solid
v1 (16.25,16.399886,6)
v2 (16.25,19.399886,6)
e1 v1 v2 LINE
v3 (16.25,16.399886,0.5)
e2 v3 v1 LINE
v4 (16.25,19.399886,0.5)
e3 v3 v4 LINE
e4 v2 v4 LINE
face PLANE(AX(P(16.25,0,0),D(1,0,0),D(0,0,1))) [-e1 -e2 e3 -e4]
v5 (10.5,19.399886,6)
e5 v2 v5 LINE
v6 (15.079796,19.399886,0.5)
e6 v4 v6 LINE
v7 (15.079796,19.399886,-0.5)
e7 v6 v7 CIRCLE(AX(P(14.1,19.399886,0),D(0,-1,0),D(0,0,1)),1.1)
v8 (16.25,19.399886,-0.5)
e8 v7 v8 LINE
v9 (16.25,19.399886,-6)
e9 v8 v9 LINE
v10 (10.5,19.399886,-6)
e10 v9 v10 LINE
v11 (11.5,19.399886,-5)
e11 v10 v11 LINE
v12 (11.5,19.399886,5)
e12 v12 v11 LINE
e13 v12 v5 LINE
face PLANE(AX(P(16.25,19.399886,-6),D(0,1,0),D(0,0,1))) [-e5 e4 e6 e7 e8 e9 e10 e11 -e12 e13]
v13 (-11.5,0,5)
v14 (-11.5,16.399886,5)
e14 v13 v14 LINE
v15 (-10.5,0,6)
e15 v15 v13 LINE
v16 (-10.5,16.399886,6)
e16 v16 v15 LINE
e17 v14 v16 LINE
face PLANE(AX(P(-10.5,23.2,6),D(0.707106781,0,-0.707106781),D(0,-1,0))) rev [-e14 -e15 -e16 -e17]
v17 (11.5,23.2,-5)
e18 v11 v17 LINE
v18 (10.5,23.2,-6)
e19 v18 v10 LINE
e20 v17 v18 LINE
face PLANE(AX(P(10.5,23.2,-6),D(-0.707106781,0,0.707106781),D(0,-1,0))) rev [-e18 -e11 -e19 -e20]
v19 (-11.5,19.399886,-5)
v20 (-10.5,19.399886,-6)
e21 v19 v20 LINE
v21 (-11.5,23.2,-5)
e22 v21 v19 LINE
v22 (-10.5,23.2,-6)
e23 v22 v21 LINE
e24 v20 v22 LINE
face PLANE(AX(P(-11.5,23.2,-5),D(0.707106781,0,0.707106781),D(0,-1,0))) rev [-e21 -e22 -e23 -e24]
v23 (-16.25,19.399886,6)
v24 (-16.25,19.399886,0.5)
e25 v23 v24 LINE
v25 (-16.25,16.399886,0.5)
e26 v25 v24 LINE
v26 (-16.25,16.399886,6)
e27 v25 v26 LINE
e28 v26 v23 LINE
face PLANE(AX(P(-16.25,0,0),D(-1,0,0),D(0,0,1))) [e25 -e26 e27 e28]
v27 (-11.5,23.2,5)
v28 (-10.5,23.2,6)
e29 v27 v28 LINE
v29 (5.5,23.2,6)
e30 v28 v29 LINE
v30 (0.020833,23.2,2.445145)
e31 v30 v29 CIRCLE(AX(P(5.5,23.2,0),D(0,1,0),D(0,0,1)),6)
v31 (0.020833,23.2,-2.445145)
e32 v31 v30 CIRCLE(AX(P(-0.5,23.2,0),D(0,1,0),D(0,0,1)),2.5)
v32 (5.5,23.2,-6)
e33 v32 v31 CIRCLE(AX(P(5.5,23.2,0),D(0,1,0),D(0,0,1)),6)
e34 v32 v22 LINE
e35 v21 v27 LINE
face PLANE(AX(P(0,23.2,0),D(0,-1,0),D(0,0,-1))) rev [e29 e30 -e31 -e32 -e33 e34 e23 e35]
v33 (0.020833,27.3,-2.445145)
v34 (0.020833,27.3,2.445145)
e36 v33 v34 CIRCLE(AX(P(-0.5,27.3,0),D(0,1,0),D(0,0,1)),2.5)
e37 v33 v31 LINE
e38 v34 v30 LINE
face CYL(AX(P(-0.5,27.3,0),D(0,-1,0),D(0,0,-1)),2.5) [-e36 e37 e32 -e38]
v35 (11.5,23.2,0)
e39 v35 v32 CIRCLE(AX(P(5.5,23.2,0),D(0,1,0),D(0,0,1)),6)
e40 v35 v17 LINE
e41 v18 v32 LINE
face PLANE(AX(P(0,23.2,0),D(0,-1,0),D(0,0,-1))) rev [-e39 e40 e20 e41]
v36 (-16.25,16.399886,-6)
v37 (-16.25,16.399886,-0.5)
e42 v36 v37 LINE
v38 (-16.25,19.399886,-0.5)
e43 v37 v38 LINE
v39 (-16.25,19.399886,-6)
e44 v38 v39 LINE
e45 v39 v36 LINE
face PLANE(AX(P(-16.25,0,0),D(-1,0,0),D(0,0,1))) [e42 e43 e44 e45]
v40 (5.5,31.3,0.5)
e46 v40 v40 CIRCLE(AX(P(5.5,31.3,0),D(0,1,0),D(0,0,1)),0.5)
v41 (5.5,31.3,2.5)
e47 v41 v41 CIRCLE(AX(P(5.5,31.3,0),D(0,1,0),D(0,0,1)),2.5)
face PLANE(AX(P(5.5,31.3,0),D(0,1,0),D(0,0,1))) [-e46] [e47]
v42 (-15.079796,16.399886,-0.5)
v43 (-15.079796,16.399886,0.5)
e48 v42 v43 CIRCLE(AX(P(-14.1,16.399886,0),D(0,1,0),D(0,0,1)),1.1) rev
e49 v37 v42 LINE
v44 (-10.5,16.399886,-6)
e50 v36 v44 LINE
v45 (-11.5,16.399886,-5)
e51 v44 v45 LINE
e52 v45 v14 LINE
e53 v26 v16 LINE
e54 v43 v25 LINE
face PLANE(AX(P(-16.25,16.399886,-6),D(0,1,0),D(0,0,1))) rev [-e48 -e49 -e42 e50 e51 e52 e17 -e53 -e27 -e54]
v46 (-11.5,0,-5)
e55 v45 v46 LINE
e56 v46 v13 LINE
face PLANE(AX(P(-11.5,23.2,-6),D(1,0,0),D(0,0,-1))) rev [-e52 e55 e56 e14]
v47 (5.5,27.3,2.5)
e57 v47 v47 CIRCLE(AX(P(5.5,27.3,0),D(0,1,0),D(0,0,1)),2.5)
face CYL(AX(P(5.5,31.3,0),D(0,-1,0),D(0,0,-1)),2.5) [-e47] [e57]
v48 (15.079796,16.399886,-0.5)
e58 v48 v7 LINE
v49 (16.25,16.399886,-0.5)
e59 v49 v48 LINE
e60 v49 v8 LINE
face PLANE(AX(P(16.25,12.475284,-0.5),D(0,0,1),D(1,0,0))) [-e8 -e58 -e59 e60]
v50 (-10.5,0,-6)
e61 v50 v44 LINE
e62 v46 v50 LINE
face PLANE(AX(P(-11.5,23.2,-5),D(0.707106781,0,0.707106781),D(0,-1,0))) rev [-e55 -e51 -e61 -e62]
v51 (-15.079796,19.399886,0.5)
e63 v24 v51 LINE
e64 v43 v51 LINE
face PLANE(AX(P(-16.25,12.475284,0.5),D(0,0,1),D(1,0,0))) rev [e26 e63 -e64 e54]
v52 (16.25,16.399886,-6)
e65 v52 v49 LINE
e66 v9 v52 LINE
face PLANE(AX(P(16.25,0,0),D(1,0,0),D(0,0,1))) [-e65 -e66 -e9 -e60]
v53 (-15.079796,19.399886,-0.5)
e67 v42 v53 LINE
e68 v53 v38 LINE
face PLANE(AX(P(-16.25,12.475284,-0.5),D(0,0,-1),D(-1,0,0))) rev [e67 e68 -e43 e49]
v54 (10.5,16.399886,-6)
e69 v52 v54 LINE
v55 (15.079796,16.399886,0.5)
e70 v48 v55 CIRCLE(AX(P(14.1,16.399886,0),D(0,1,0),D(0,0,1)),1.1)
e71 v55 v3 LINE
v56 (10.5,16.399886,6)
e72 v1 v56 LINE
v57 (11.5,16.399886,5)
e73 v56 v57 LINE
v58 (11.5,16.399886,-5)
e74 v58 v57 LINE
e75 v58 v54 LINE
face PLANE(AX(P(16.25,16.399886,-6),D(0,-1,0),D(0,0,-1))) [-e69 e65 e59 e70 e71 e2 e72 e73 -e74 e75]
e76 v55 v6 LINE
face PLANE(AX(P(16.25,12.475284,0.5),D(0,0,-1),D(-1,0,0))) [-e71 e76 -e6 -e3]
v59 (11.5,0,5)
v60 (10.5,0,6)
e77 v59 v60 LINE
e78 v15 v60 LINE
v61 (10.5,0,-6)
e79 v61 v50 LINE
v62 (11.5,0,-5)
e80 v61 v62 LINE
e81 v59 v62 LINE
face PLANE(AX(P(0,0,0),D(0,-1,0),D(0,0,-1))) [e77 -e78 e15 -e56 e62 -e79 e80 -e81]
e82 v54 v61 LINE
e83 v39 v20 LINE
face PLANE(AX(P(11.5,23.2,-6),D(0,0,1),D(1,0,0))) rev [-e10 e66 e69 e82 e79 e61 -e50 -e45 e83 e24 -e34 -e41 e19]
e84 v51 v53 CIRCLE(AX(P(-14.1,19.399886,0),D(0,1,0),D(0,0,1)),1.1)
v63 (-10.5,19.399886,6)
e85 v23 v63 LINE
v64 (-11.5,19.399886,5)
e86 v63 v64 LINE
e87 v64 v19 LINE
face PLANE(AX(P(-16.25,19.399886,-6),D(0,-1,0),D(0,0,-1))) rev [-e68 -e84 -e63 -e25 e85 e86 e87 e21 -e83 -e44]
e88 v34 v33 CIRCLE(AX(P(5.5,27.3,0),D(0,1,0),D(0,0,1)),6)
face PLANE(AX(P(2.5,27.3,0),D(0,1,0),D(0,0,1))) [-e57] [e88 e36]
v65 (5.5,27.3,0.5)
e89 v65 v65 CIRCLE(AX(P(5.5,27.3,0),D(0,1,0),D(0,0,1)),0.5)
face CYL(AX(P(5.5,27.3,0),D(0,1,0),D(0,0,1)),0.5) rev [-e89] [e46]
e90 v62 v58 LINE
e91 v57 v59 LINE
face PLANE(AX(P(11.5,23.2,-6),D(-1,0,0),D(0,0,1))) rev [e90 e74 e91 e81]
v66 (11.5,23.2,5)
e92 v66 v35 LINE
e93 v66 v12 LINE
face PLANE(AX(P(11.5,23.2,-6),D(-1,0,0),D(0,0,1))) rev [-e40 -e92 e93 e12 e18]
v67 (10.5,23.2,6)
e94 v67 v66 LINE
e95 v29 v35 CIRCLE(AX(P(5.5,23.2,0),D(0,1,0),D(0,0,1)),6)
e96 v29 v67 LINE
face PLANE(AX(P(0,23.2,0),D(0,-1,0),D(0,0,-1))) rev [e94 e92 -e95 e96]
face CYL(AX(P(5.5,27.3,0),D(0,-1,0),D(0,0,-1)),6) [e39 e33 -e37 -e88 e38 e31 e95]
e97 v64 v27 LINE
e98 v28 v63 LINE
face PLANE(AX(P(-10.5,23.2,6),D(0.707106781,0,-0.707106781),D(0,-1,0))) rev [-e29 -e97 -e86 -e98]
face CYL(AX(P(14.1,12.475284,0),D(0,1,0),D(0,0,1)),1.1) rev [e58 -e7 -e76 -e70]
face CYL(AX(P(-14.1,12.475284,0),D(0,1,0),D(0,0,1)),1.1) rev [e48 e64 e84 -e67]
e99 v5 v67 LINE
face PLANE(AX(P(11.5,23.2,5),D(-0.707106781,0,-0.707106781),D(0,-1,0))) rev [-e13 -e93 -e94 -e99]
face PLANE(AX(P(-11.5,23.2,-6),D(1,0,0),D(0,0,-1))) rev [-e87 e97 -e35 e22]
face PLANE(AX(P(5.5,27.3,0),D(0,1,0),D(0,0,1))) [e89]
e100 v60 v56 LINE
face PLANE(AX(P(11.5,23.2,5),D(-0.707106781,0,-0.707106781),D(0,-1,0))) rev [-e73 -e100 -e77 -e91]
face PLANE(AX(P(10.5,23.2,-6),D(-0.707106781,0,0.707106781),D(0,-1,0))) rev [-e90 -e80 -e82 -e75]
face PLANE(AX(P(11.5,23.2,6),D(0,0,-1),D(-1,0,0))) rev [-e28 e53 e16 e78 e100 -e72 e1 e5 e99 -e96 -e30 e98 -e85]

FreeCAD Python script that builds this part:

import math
import FreeCAD as App
import Part
import Sketcher
from FreeCAD import Vector


def edges_at(feature, points):
    """Names of the edges that pass closest to the given points."""
    edges = feature.Shape.Edges
    near = lambda p: min(range(len(edges)), key=lambda i: edges[i].distToShape(Part.Vertex(*p))[0])
    return sorted({f"Edge{near(p) + 1}" for p in points})

doc = App.newDocument("Part")
body = doc.addObject("PartDesign::Body", "Body")

# Sketch on XZ plane
sketch1 = doc.addObject("Sketcher::SketchObject", "Sketch")
body.addObject(sketch1)
sketch1.AttachmentSupport = (doc.XZ_Plane, [""])
sketch1.MapMode = "FlatFace"
sketch1.addGeometry(Part.LineSegment(Vector(-12, -6, 0), Vector(-12, 6, 0)), False)
sketch1.addGeometry(Part.LineSegment(Vector(-12, 6, 0), Vector(12, 6, 0)), False)
sketch1.addGeometry(Part.LineSegment(Vector(12, 6, 0), Vector(12, -6, 0)), False)
sketch1.addGeometry(Part.LineSegment(Vector(12, -6, 0), Vector(-12, -6, 0)), False)
sketch1.addConstraint(Sketcher.Constraint("Coincident", 0, 2, 1, 1))
sketch1.addConstraint(Sketcher.Constraint("Coincident", 1, 2, 2, 1))
sketch1.addConstraint(Sketcher.Constraint("Coincident", 2, 2, 3, 1))
sketch1.addConstraint(Sketcher.Constraint("Coincident", 3, 2, 0, 1))
sketch1.addConstraint(Sketcher.Constraint("Vertical", 0))
sketch1.addConstraint(Sketcher.Constraint("Horizontal", 1))
sketch1.addConstraint(Sketcher.Constraint("Vertical", 2))
sketch1.addConstraint(Sketcher.Constraint("Horizontal", 3))
sketch1.addConstraint(Sketcher.Constraint("Symmetric", 0, 2, 2, 2, -1, 1))
sketch1.addConstraint(Sketcher.Constraint("DistanceX", 1, 1, 1, 2, 23.0))
sketch1.addConstraint(Sketcher.Constraint("DistanceY", 0, 1, 0, 2, 12.0))
pad1 = doc.addObject("PartDesign::Pad", "Pad")
body.addObject(pad1)
pad1.Profile = sketch1
pad1.Length = 23.2
pad1.Reversed = True

# Sketch on XZ plane
sketch2 = doc.addObject("Sketcher::SketchObject", "Sketch001")
body.addObject(sketch2)
sketch2.AttachmentSupport = (doc.XZ_Plane, [""])
sketch2.MapMode = "FlatFace"
sketch2.addGeometry(Part.Circle(Vector(-11.5, 6, 0), Vector(0, 0, 1), 2), False)
sketch2.addGeometry(Part.Circle(Vector(11.5, 6, 0), Vector(0, 0, 1), 2), False)
sketch2.addGeometry(Part.Circle(Vector(-11.5, -6, 0), Vector(0, 0, 1), 2), False)
sketch2.addGeometry(Part.Circle(Vector(11.5, -6, 0), Vector(0, 0, 1), 2), False)
sketch2.addConstraint(Sketcher.Constraint("Equal", 0, 1))
sketch2.addConstraint(Sketcher.Constraint("Equal", 1, 2))
sketch2.addConstraint(Sketcher.Constraint("Equal", 2, 3))
sketch2.addConstraint(Sketcher.Constraint("Symmetric", 1, 3, 2, 3, -1, 1))
sketch2.addConstraint(Sketcher.Constraint("Symmetric", 0, 3, 3, 3, -1, 1))
sketch2.addConstraint(Sketcher.Constraint("Symmetric", 0, 3, 1, 3, -2))
sketch2.addConstraint(Sketcher.Constraint("Diameter", 0, 4.0))
sketch2.addConstraint(Sketcher.Constraint("DistanceY", -1, 1, 0, 3, 6.0))
sketch2.addConstraint(Sketcher.Constraint("DistanceX", 0, 3, 1, 3, 23.0))
pocket1 = doc.addObject("PartDesign::Pocket", "Pocket")
body.addObject(pocket1)
pocket1.Profile = sketch2
pocket1.Length = 0.5

# Sketch on XZ plane
sketch3 = doc.addObject("Sketcher::SketchObject", "Sketch002")
body.addObject(sketch3)
sketch3.AttachmentSupport = (doc.XZ_Plane, [""])
sketch3.MapMode = "FlatFace"
sketch3.AttachmentOffset = App.Placement(Vector(0, 0, -23.2), App.Rotation())
sketch3.addGeometry(Part.ArcOfCircle(Part.Circle(Vector(5.5, 0, 0), Vector(0, 0, 1), 6), math.radians(-156), math.radians(156)), False)
sketch3.addGeometry(Part.ArcOfCircle(Part.Circle(Vector(-0.5, 0, 0), Vector(0, 0, 1), 2.5), math.radians(78), math.radians(282)), False)
sketch3.addConstraint(Sketcher.Constraint("Coincident", 0, 1, 1, 2))
sketch3.addConstraint(Sketcher.Constraint("Coincident", 1, 1, 0, 2))
sketch3.addConstraint(Sketcher.Constraint("Symmetric", 0, 1, 1, 1, -1))
sketch3.addConstraint(Sketcher.Constraint("Radius", 0, 6.0))
sketch3.addConstraint(Sketcher.Constraint("Radius", 1, 2.5))
sketch3.addConstraint(Sketcher.Constraint("DistanceX", 1, 3, 0, 3, 6.0))
sketch3.addConstraint(Sketcher.Constraint("DistanceX", -1, 1, 0, 3, 5.5))
pad2 = doc.addObject("PartDesign::Pad", "Pad001")
body.addObject(pad2)
pad2.Profile = sketch3
pad2.Length = 4.1
pad2.Reversed = True

# Sketch on XZ plane
sketch4 = doc.addObject("Sketcher::SketchObject", "Sketch003")
body.addObject(sketch4)
sketch4.AttachmentSupport = (doc.XZ_Plane, [""])
sketch4.MapMode = "FlatFace"
sketch4.AttachmentOffset = App.Placement(Vector(0, 0, -27.3), App.Rotation())
sketch4.addGeometry(Part.Circle(Vector(5.5, 0, 0), Vector(0, 0, 1), 2.5), False)
sketch4.addConstraint(Sketcher.Constraint("PointOnObject", 0, 3, -1))
sketch4.addConstraint(Sketcher.Constraint("Diameter", 0, 5.0))
sketch4.addConstraint(Sketcher.Constraint("DistanceX", -1, 1, 0, 3, 5.5))
pad3 = doc.addObject("PartDesign::Pad", "Pad002")
body.addObject(pad3)
pad3.Profile = sketch4
pad3.Length = 4
pad3.Reversed = True

# Sketch on XZ plane
sketch5 = doc.addObject("Sketcher::SketchObject", "Sketch004")
body.addObject(sketch5)
sketch5.AttachmentSupport = (doc.XZ_Plane, [""])
sketch5.MapMode = "FlatFace"
sketch5.AttachmentOffset = App.Placement(Vector(0, 0, -31.3), App.Rotation())
sketch5.addGeometry(Part.Circle(Vector(5.5, 0, 0), Vector(0, 0, 1), 0.5), False)
sketch5.addConstraint(Sketcher.Constraint("PointOnObject", 0, 3, -1))
sketch5.addConstraint(Sketcher.Constraint("Diameter", 0, 1.0))
sketch5.addConstraint(Sketcher.Constraint("DistanceX", -1, 1, 0, 3, 5.5))
pocket2 = doc.addObject("PartDesign::Pocket", "Pocket001")
body.addObject(pocket2)
pocket2.Profile = sketch5
pocket2.Length = 4
pocket2.Reversed = True

# Sketch on YZ plane
sketch6 = doc.addObject("Sketcher::SketchObject", "Sketch005")
body.addObject(sketch6)
sketch6.AttachmentSupport = (doc.YZ_Plane, [""])
sketch6.MapMode = "FlatFace"
sketch6.AttachmentOffset = App.Placement(Vector(0, 0, -11.5), App.Rotation())
sketch6.addGeometry(Part.LineSegment(Vector(19.4, -6, 0), Vector(16.4, -6, 0)), False)
sketch6.addGeometry(Part.LineSegment(Vector(16.4, -6, 0), Vector(16.4, 6, 0)), False)
sketch6.addGeometry(Part.LineSegment(Vector(16.4, 6, 0), Vector(19.4, 6, 0)), False)
sketch6.addGeometry(Part.LineSegment(Vector(19.4, 6, 0), Vector(19.4, -6, 0)), False)
sketch6.addConstraint(Sketcher.Constraint("Coincident", 0, 2, 1, 1))
sketch6.addConstraint(Sketcher.Constraint("Coincident", 1, 2, 2, 1))
sketch6.addConstraint(Sketcher.Constraint("Coincident", 2, 2, 3, 1))
sketch6.addConstraint(Sketcher.Constraint("Coincident", 3, 2, 0, 1))
sketch6.addConstraint(Sketcher.Constraint("Horizontal", 0))
sketch6.addConstraint(Sketcher.Constraint("Vertical", 1))
sketch6.addConstraint(Sketcher.Constraint("Horizontal", 2))
sketch6.addConstraint(Sketcher.Constraint("Vertical", 3))
sketch6.addConstraint(Sketcher.Constraint("DistanceX", 0, 2, 0, 1, 3.0))
sketch6.addConstraint(Sketcher.Constraint("DistanceY", 1, 1, 1, 2, 12.0))
sketch6.addConstraint(Sketcher.Constraint("DistanceY", 0, 2, -1, 1, 6.0))
sketch6.addConstraint(Sketcher.Constraint("DistanceX", -1, 1, 0, 2, 16.399886))
pad4 = doc.addObject("PartDesign::Pad", "Pad003")
body.addObject(pad4)
pad4.Profile = sketch6
pad4.Length = 4.75
pad4.Reversed = True

# Sketch on XZ plane
sketch7 = doc.addObject("Sketcher::SketchObject", "Sketch006")
body.addObject(sketch7)
sketch7.AttachmentSupport = (doc.XZ_Plane, [""])
sketch7.MapMode = "FlatFace"
sketch7.AttachmentOffset = App.Placement(Vector(0, 0, -19.399886), App.Rotation())
sketch7.addGeometry(Part.LineSegment(Vector(-15.1, -0.5, 0), Vector(-16.2, -0.5, 0)), False)
sketch7.addGeometry(Part.LineSegment(Vector(-16.2, -0.5, 0), Vector(-16.2, 0.5, 0)), False)
sketch7.addGeometry(Part.LineSegment(Vector(-16.2, 0.5, 0), Vector(-15.1, 0.5, 0)), False)
sketch7.addGeometry(Part.ArcOfCircle(Part.Circle(Vector(-14.1, 0, 0), Vector(0, 0, 1), 1.1), math.radians(-153), math.radians(153)), False)
sketch7.addConstraint(Sketcher.Constraint("Coincident", 0, 2, 1, 1))
sketch7.addConstraint(Sketcher.Constraint("Coincident", 1, 2, 2, 1))
sketch7.addConstraint(Sketcher.Constraint("Coincident", 2, 2, 3, 2))
sketch7.addConstraint(Sketcher.Constraint("Coincident", 3, 1, 0, 1))
sketch7.addConstraint(Sketcher.Constraint("Horizontal", 0))
sketch7.addConstraint(Sketcher.Constraint("Vertical", 1))
sketch7.addConstraint(Sketcher.Constraint("Horizontal", 2))
sketch7.addConstraint(Sketcher.Constraint("Symmetric", 2, 2, 3, 1, -1))
sketch7.addConstraint(Sketcher.Constraint("Radius", 3, 1.1))
sketch7.addConstraint(Sketcher.Constraint("DistanceY", 1, 1, 1, 2, 1.0))
sketch7.addConstraint(Sketcher.Constraint("DistanceX", 3, 3, -1, 1, 14.1))
sketch7.addConstraint(Sketcher.Constraint("DistanceX", 0, 2, -1, 1, 16.25))
pocket3 = doc.addObject("PartDesign::Pocket", "Pocket002")
body.addObject(pocket3)
pocket3.Profile = sketch7
pocket3.Length = 3
pocket3.Reversed = True
doc.recompute()

mirrored = doc.addObject("PartDesign::Mirrored", "Mirrored")
body.addObject(mirrored)
mirrored.Originals = [pad1, pad4, pocket3]
mirrored.MirrorPlane = (doc.YZ_Plane, [""])
body.Tip = mirrored
doc.recompute()

chamfer = doc.addObject("PartDesign::Chamfer", "Chamfer")
body.addObject(chamfer)
chamfer.Base = (mirrored, edges_at(mirrored, [
    (11.5, 8.2, -6),
    (11.5, 8.2, 6),
    (-11.5, 8.2, 6),
    (-11.5, 8.2, -6),
    (-11.5, 21.3, -6),
    (11.5, 21.3, -6),
    (11.5, 21.3, 6),
    (-11.5, 21.3, 6),
]))
chamfer.Size = 1

doc.recompute()
